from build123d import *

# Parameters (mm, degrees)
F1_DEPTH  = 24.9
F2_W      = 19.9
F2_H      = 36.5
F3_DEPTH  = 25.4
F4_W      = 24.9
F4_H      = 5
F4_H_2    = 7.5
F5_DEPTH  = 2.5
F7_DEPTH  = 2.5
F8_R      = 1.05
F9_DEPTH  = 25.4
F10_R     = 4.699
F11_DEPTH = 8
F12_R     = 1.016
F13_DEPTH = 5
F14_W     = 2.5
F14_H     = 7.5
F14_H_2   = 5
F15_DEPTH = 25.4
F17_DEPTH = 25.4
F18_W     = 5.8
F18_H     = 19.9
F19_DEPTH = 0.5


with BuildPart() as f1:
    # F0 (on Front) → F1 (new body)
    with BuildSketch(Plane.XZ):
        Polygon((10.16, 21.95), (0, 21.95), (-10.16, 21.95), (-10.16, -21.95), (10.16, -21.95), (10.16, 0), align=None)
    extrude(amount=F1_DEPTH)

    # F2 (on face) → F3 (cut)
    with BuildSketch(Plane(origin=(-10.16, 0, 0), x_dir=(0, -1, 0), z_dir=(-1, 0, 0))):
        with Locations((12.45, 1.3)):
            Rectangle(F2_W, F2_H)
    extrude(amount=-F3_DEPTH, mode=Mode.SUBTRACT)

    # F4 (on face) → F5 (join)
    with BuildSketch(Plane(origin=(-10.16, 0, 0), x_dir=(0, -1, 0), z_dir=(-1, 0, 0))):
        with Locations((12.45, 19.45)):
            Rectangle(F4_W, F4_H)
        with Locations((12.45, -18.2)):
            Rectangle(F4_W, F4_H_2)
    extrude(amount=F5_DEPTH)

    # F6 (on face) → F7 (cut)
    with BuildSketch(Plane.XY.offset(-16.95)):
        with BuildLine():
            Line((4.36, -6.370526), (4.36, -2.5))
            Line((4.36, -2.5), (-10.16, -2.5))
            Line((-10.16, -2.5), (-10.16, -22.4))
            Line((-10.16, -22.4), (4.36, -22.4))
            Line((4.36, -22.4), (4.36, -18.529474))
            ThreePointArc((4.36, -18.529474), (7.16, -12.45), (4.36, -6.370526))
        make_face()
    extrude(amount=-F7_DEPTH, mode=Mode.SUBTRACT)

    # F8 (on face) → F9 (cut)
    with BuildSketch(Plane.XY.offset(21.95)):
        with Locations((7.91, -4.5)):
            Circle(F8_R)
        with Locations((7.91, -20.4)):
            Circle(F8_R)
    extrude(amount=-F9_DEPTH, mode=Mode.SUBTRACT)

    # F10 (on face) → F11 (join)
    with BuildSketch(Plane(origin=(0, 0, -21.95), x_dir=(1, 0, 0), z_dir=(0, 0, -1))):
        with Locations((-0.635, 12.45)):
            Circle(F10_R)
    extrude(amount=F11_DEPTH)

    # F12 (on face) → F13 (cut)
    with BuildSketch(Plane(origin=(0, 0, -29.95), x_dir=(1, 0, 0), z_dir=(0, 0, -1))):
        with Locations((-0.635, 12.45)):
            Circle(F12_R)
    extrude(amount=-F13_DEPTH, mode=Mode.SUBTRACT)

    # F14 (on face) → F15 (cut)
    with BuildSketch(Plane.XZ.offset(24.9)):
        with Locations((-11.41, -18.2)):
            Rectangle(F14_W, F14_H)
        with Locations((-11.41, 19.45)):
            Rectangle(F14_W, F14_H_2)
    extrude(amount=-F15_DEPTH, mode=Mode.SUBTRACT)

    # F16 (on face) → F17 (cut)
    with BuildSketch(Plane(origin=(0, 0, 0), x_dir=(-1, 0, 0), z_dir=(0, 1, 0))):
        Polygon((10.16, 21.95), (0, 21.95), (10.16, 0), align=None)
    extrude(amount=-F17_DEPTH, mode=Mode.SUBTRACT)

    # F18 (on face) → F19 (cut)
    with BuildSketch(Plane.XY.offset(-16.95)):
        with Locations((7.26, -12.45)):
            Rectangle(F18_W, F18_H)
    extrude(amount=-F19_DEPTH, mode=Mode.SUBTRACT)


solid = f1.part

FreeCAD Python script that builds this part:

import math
import FreeCAD as App
import Part
import Sketcher
from FreeCAD import Vector


def add_polygon(sketch, points):
    """Adds a closed chain of lines whose ends are joined by coincident constraints."""
    first, n = sketch.GeometryCount, len(points)
    for a, b in zip(points, points[1:] + points[:1]):
        sketch.addGeometry(Part.LineSegment(App.Vector(*a, 0), App.Vector(*b, 0)), False)
    for i in range(n):
        sketch.addConstraint(Sketcher.Constraint("Coincident", first + i, 2, first + (i + 1) % n, 1))

doc = App.newDocument("Part")
body = doc.addObject("PartDesign::Body", "Body")

# Sketch on XZ plane
sketch1 = body.newObject("Sketcher::SketchObject", "Sketch")
sketch1.AttachmentSupport = (doc.getObject("XZ_Plane"), [""])
sketch1.MapMode = "FlatFace"
add_polygon(sketch1, [(10.16, 21.95), (-10.16, 21.95), (-10.16, -21.95), (10.16, -21.95)])  # lines 0-3
sketch1.addConstraint(Sketcher.Constraint("Horizontal", 0))
sketch1.addConstraint(Sketcher.Constraint("Vertical", 1))
sketch1.addConstraint(Sketcher.Constraint("Horizontal", 2))
sketch1.addConstraint(Sketcher.Constraint("Vertical", 3))
sketch1.addConstraint(Sketcher.Constraint("Symmetric", 0, 2, 2, 2, -1, 1))
sketch1.addConstraint(Sketcher.Constraint("DistanceY", 1, 2, 1, 1, 43.9))
sketch1.addConstraint(Sketcher.Constraint("DistanceX", 0, 2, 0, 1, 20.32))
pad1 = body.newObject("PartDesign::Pad", "Pad")
pad1.Profile = sketch1
pad1.Length = 24.9

# Sketch on YZ plane
sketch2 = body.newObject("Sketcher::SketchObject", "Sketch001")
sketch2.AttachmentSupport = (doc.getObject("YZ_Plane"), [""])
sketch2.MapMode = "FlatFace"
sketch2.AttachmentOffset = App.Placement(Vector(0, 0, -10.16), App.Rotation())
add_polygon(sketch2, [(-2.5, 19.55), (-2.5, -16.95), (-22.4, -16.95), (-22.4, 19.55)])  # lines 0-3
sketch2.addConstraint(Sketcher.Constraint("Vertical", 0))
sketch2.addConstraint(Sketcher.Constraint("Horizontal", 1))
sketch2.addConstraint(Sketcher.Constraint("Vertical", 2))
sketch2.addConstraint(Sketcher.Constraint("Horizontal", 3))
sketch2.addConstraint(Sketcher.Constraint("DistanceX", 1, 2, 1, 1, 19.9))
sketch2.addConstraint(Sketcher.Constraint("DistanceY", 0, 2, 0, 1, 36.5))
sketch2.addConstraint(Sketcher.Constraint("DistanceX", 0, 2, -1, 1, 2.5))
sketch2.addConstraint(Sketcher.Constraint("DistanceY", 0, 2, -1, 1, 16.95))
pocket1 = body.newObject("PartDesign::Pocket", "Pocket")
pocket1.Profile = sketch2
pocket1.Length = 25.4
pocket1.Reversed = True

# Sketch on YZ plane
sketch3 = body.newObject("Sketcher::SketchObject", "Sketch002")
sketch3.AttachmentSupport = (doc.getObject("YZ_Plane"), [""])
sketch3.MapMode = "FlatFace"
sketch3.AttachmentOffset = App.Placement(Vector(0, 0, -10.16), App.Rotation())
add_polygon(sketch3, [(0, 21.95), (0, 16.95), (-24.9, 16.95), (-24.9, 21.95)])  # lines 0-3
add_polygon(sketch3, [(0, -14.45), (0, -21.95), (-24.9, -21.95), (-24.9, -14.45)])  # lines 4-7
sketch3.addConstraint(Sketcher.Constraint("Vertical", 0))
sketch3.addConstraint(Sketcher.Constraint("Horizontal", 1))
sketch3.addConstraint(Sketcher.Constraint("Vertical", 2))
sketch3.addConstraint(Sketcher.Constraint("Horizontal", 3))
sketch3.addConstraint(Sketcher.Constraint("Vertical", 4))
sketch3.addConstraint(Sketcher.Constraint("Horizontal", 5))
sketch3.addConstraint(Sketcher.Constraint("Vertical", 6))
sketch3.addConstraint(Sketcher.Constraint("Horizontal", 7))
sketch3.addConstraint(Sketcher.Constraint("Symmetric", 3, 2, 4, 2, -1, 1))
sketch3.addConstraint(Sketcher.Constraint("PointOnObject", 0, 2, -2))
sketch3.addConstraint(Sketcher.Constraint("Vertical", 2, 2, 5, 2))
sketch3.addConstraint(Sketcher.Constraint("DistanceY", 0, 2, 0, 1, 5.0))
sketch3.addConstraint(Sketcher.Constraint("DistanceX", 1, 2, 1, 1, 24.9))
sketch3.addConstraint(Sketcher.Constraint("DistanceY", 4, 2, 4, 1, 7.5))
sketch3.addConstraint(Sketcher.Constraint("DistanceY", 4, 2, 0, 2, 38.9))
pad2 = body.newObject("PartDesign::Pad", "Pad001")
pad2.Profile = sketch3
pad2.Length = 2.5
pad2.Reversed = True

# Sketch on XY plane
sketch4 = body.newObject("Sketcher::SketchObject", "Sketch003")
sketch4.AttachmentSupport = (doc.getObject("XY_Plane"), [""])
sketch4.MapMode = "FlatFace"
sketch4.AttachmentOffset = App.Placement(Vector(0, 0, -16.95), App.Rotation())
sketch4.addGeometry(Part.LineSegment(Vector(4.36, -6.370526, 0), Vector(4.36, -2.5, 0)), False)
sketch4.addGeometry(Part.LineSegment(Vector(4.36, -2.5, 0), Vector(-10.16, -2.5, 0)), False)
sketch4.addGeometry(Part.LineSegment(Vector(-10.16, -2.5, 0), Vector(-10.16, -22.4, 0)), False)
sketch4.addGeometry(Part.LineSegment(Vector(-10.16, -22.4, 0), Vector(4.36, -22.4, 0)), False)
sketch4.addGeometry(Part.LineSegment(Vector(4.36, -22.4, 0), Vector(4.36, -18.529474, 0)), False)
sketch4.addGeometry(Part.ArcOfCircle(Part.Circle(Vector(-0.840001, -12.45, 0), Vector(0, 0, 1), 8.000001), math.radians(-49.458396), math.radians(49.458396)), False)
sketch4.addConstraint(Sketcher.Constraint("Coincident", 0, 2, 1, 1))
sketch4.addConstraint(Sketcher.Constraint("Coincident", 1, 2, 2, 1))
sketch4.addConstraint(Sketcher.Constraint("Coincident", 2, 2, 3, 1))
sketch4.addConstraint(Sketcher.Constraint("Coincident", 3, 2, 4, 1))
sketch4.addConstraint(Sketcher.Constraint("Coincident", 4, 2, 5, 1))
sketch4.addConstraint(Sketcher.Constraint("Coincident", 5, 2, 0, 1))
sketch4.addConstraint(Sketcher.Constraint("Vertical", 0))
sketch4.addConstraint(Sketcher.Constraint("Horizontal", 1))
sketch4.addConstraint(Sketcher.Constraint("Vertical", 2))
sketch4.addConstraint(Sketcher.Constraint("Horizontal", 3))
sketch4.addConstraint(Sketcher.Constraint("Vertical", 4))
sketch4.addConstraint(Sketcher.Constraint("Vertical", 0, 2, 3, 2))
sketch4.addConstraint(Sketcher.Constraint("Equal", 0, 4))
sketch4.addConstraint(Sketcher.Constraint("Radius", 5, 8.000001))
sketch4.addConstraint(Sketcher.Constraint("DistanceY", 2, 2, 2, 1, 19.9))
sketch4.addConstraint(Sketcher.Constraint("DistanceX", 1, 2, 1, 1, 14.52))
sketch4.addConstraint(Sketcher.Constraint("DistanceY", 0, 2, -1, 1, 2.5))
sketch4.addConstraint(Sketcher.Constraint("DistanceX", 5, 3, 0, 2, 5.200001))
sketch4.addConstraint(Sketcher.Constraint("DistanceX", 5, 3, -1, 1, 0.840001))
pocket2 = body.newObject("PartDesign::Pocket", "Pocket001")
pocket2.Profile = sketch4
pocket2.Length = 2.5

# Sketch on XY plane
sketch5 = body.newObject("Sketcher::SketchObject", "Sketch004")
sketch5.AttachmentSupport = (doc.getObject("XY_Plane"), [""])
sketch5.MapMode = "FlatFace"
sketch5.AttachmentOffset = App.Placement(Vector(0, 0, 21.95), App.Rotation())
sketch5.addGeometry(Part.Circle(Vector(7.91, -4.5, 0), Vector(0, 0, 1), 1.05), False)
sketch5.addGeometry(Part.Circle(Vector(7.91, -20.4, 0), Vector(0, 0, 1), 1.05), False)
sketch5.addConstraint(Sketcher.Constraint("Equal", 0, 1))
sketch5.addConstraint(Sketcher.Constraint("Vertical", 0, 3, 1, 3))
sketch5.addConstraint(Sketcher.Constraint("Diameter", 0, 2.1))
sketch5.addConstraint(Sketcher.Constraint("DistanceY", 0, 3, -1, 1, 4.5))
sketch5.addConstraint(Sketcher.Constraint("DistanceY", 1, 3, -1, 1, 20.4))
sketch5.addConstraint(Sketcher.Constraint("DistanceX", -1, 1, 0, 3, 7.91))
pocket3 = body.newObject("PartDesign::Pocket", "Pocket002")
pocket3.Profile = sketch5
pocket3.Length = 25.4

# Sketch on XY plane
sketch6 = body.newObject("Sketcher::SketchObject", "Sketch005")
sketch6.AttachmentSupport = (doc.getObject("XY_Plane"), [""])
sketch6.MapMode = "FlatFace"
sketch6.AttachmentOffset = App.Placement(Vector(0, 0, -21.95), App.Rotation())
sketch6.addGeometry(Part.Circle(Vector(-0.635, -12.45, 0), Vector(0, 0, 1), 4.699), False)
sketch6.addConstraint(Sketcher.Constraint("Diameter", 0, 9.398))
sketch6.addConstraint(Sketcher.Constraint("DistanceY", 0, 3, -1, 1, 12.45))
sketch6.addConstraint(Sketcher.Constraint("DistanceX", 0, 3, -1, 1, 0.635))
pad3 = body.newObject("PartDesign::Pad", "Pad002")
pad3.Profile = sketch6
pad3.Length = 8
pad3.Reversed = True

# Sketch on XY plane
sketch7 = body.newObject("Sketcher::SketchObject", "Sketch006")
sketch7.AttachmentSupport = (doc.getObject("XY_Plane"), [""])
sketch7.MapMode = "FlatFace"
sketch7.AttachmentOffset = App.Placement(Vector(0, 0, -29.95), App.Rotation())
sketch7.addGeometry(Part.Circle(Vector(-0.635, -12.45, 0), Vector(0, 0, 1), 1.016), False)
sketch7.addConstraint(Sketcher.Constraint("Diameter", 0, 2.032))
sketch7.addConstraint(Sketcher.Constraint("DistanceY", 0, 3, -1, 1, 12.45))
sketch7.addConstraint(Sketcher.Constraint("DistanceX", 0, 3, -1, 1, 0.635))
pocket4 = body.newObject("PartDesign::Pocket", "Pocket003")
pocket4.Profile = sketch7
pocket4.Length = 5
pocket4.Reversed = True

# Sketch on XZ plane
sketch8 = body.newObject("Sketcher::SketchObject", "Sketch007")
sketch8.AttachmentSupport = (doc.getObject("XZ_Plane"), [""])
sketch8.MapMode = "FlatFace"
sketch8.AttachmentOffset = App.Placement(Vector(0, 0, 24.9), App.Rotation())
add_polygon(sketch8, [(-12.66, -14.45), (-12.66, -21.95), (-10.16, -21.95), (-10.16, -14.45)])  # lines 0-3
add_polygon(sketch8, [(-12.66, 21.95), (-12.66, 16.95), (-10.16, 16.95), (-10.16, 21.95)])  # lines 4-7
sketch8.addConstraint(Sketcher.Constraint("Vertical", 0))
sketch8.addConstraint(Sketcher.Constraint("Horizontal", 1))
sketch8.addConstraint(Sketcher.Constraint("Vertical", 2))
sketch8.addConstraint(Sketcher.Constraint("Horizontal", 3))
sketch8.addConstraint(Sketcher.Constraint("Vertical", 4))
sketch8.addConstraint(Sketcher.Constraint("Horizontal", 5))
sketch8.addConstraint(Sketcher.Constraint("Vertical", 6))
sketch8.addConstraint(Sketcher.Constraint("Horizontal", 7))
sketch8.addConstraint(Sketcher.Constraint("Symmetric", 1, 2, 6, 2, -1))
sketch8.addConstraint(Sketcher.Constraint("Vertical", 3, 2, 4, 2))
sketch8.addConstraint(Sketcher.Constraint("DistanceY", 4, 2, 4, 1, 5.0))
sketch8.addConstraint(Sketcher.Constraint("DistanceX", 1, 1, 1, 2, 2.5))
sketch8.addConstraint(Sketcher.Constraint("DistanceY", 0, 2, 0, 1, 7.5))
sketch8.addConstraint(Sketcher.Constraint("DistanceY", 3, 2, 4, 2, 31.4))
sketch8.addConstraint(Sketcher.Constraint("DistanceX", 0, 2, -1, 1, 12.66))
pocket5 = body.newObject("PartDesign::Pocket", "Pocket004")
pocket5.Profile = sketch8
pocket5.Length = 25.4

# Sketch on XZ plane
sketch9 = body.newObject("Sketcher::SketchObject", "Sketch008")
sketch9.AttachmentSupport = (doc.getObject("XZ_Plane"), [""])
sketch9.MapMode = "FlatFace"
add_polygon(sketch9, [(-10.16, 21.95), (0, 21.95), (-10.16, 0)])  # lines 0-2
sketch9.addConstraint(Sketcher.Constraint("Horizontal", 0))
sketch9.addConstraint(Sketcher.Constraint("Vertical", 2))
sketch9.addConstraint(Sketcher.Constraint("PointOnObject", 0, 2, -2))
sketch9.addConstraint(Sketcher.Constraint("PointOnObject", 1, 2, -1))
sketch9.addConstraint(Sketcher.Constraint("DistanceX", 0, 1, 0, 2, 10.16))
sketch9.addConstraint(Sketcher.Constraint("DistanceY", 2, 1, 2, 2, 21.95))
pocket6 = body.newObject("PartDesign::Pocket", "Pocket005")
pocket6.Profile = sketch9
pocket6.Length = 25.4
pocket6.Reversed = True

# Sketch on XY plane
sketch10 = body.newObject("Sketcher::SketchObject", "Sketch009")
sketch10.AttachmentSupport = (doc.getObject("XY_Plane"), [""])
sketch10.MapMode = "FlatFace"
sketch10.AttachmentOffset = App.Placement(Vector(0, 0, -16.95), App.Rotation())
add_polygon(sketch10, [(4.36, -2.5), (4.36, -22.4), (10.16, -22.4), (10.16, -2.5)])  # lines 0-3
sketch10.addConstraint(Sketcher.Constraint("Vertical", 0))
sketch10.addConstraint(Sketcher.Constraint("Horizontal", 1))
sketch10.addConstraint(Sketcher.Constraint("Vertical", 2))
sketch10.addConstraint(Sketcher.Constraint("Horizontal", 3))
sketch10.addConstraint(Sketcher.Constraint("DistanceX", 1, 1, 1, 2, 5.8))
sketch10.addConstraint(Sketcher.Constraint("DistanceY", 0, 2, 0, 1, 19.9))
sketch10.addConstraint(Sketcher.Constraint("DistanceY", 0, 2, -1, 1, 22.4))
sketch10.addConstraint(Sketcher.Constraint("DistanceX", -1, 1, 0, 2, 4.36))
pocket7 = body.newObject("PartDesign::Pocket", "Pocket006")
pocket7.Profile = sketch10
pocket7.Length = 0.5

doc.recompute()
